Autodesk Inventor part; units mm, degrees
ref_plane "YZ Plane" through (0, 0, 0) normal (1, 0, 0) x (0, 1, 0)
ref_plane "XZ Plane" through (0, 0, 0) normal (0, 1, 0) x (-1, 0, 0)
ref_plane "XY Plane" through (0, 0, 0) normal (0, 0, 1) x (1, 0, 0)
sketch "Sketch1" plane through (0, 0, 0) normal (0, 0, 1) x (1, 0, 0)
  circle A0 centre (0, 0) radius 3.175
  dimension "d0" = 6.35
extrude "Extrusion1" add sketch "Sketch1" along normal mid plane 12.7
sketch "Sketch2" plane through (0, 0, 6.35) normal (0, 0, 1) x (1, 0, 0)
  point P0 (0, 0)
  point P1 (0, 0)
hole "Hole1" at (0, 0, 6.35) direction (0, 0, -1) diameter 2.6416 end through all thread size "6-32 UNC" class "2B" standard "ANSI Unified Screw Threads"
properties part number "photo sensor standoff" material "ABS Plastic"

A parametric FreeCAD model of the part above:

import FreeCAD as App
import Part
import Sketcher

V = App.Vector
Q = App.Units.Quantity

doc = App.newDocument("Part")
body = doc.addObject("PartDesign::Body", "Body")

sketch1 = body.newObject("Sketcher::SketchObject", "Sketch")
sketch1.AttachmentSupport = (doc.getObject("XY_Plane"), [""])
sketch1.MapMode = "FlatFace"
sketch1.addGeometry(Part.Circle(V(0, 0, 0), V(0, 0, 1), 3.2), False)
sketch1.addConstraint([
    Sketcher.Constraint("Coincident", 0, 3, -1, 1),
    Sketcher.Constraint("Diameter", 0, Q("0.25 in")),
])
pad1 = body.newObject("PartDesign::Pad", "Pad")
pad1.Profile = sketch1
pad1.Length = Q("0.5 in")
pad1.Midplane = True

sketch2 = body.newObject("Sketcher::SketchObject", "Sketch001")
sketch2.AttachmentSupport = (doc.getObject("XY_Plane"), [""])
sketch2.MapMode = "FlatFace"
sketch2.AttachmentOffset = App.Placement(V(0, 0, 0.25 * 25.4), App.Rotation())
sketch2.addGeometry(Part.Circle(V(0, 0, 0), V(0, 0, 1), 1.3), False)
sketch2.addConstraint([
    Sketcher.Constraint("Coincident", 0, 3, -1, 1),
    Sketcher.Constraint("Diameter", 0, Q("0.104 in")),
])
doc.recompute()
hole = body.newObject("PartDesign::Hole", "Hole")
hole.Profile = sketch2
hole.ThreadType = "None"
hole.Diameter = Q("0.104 in")
hole.DepthType = "ThroughAll"

doc.recompute()
